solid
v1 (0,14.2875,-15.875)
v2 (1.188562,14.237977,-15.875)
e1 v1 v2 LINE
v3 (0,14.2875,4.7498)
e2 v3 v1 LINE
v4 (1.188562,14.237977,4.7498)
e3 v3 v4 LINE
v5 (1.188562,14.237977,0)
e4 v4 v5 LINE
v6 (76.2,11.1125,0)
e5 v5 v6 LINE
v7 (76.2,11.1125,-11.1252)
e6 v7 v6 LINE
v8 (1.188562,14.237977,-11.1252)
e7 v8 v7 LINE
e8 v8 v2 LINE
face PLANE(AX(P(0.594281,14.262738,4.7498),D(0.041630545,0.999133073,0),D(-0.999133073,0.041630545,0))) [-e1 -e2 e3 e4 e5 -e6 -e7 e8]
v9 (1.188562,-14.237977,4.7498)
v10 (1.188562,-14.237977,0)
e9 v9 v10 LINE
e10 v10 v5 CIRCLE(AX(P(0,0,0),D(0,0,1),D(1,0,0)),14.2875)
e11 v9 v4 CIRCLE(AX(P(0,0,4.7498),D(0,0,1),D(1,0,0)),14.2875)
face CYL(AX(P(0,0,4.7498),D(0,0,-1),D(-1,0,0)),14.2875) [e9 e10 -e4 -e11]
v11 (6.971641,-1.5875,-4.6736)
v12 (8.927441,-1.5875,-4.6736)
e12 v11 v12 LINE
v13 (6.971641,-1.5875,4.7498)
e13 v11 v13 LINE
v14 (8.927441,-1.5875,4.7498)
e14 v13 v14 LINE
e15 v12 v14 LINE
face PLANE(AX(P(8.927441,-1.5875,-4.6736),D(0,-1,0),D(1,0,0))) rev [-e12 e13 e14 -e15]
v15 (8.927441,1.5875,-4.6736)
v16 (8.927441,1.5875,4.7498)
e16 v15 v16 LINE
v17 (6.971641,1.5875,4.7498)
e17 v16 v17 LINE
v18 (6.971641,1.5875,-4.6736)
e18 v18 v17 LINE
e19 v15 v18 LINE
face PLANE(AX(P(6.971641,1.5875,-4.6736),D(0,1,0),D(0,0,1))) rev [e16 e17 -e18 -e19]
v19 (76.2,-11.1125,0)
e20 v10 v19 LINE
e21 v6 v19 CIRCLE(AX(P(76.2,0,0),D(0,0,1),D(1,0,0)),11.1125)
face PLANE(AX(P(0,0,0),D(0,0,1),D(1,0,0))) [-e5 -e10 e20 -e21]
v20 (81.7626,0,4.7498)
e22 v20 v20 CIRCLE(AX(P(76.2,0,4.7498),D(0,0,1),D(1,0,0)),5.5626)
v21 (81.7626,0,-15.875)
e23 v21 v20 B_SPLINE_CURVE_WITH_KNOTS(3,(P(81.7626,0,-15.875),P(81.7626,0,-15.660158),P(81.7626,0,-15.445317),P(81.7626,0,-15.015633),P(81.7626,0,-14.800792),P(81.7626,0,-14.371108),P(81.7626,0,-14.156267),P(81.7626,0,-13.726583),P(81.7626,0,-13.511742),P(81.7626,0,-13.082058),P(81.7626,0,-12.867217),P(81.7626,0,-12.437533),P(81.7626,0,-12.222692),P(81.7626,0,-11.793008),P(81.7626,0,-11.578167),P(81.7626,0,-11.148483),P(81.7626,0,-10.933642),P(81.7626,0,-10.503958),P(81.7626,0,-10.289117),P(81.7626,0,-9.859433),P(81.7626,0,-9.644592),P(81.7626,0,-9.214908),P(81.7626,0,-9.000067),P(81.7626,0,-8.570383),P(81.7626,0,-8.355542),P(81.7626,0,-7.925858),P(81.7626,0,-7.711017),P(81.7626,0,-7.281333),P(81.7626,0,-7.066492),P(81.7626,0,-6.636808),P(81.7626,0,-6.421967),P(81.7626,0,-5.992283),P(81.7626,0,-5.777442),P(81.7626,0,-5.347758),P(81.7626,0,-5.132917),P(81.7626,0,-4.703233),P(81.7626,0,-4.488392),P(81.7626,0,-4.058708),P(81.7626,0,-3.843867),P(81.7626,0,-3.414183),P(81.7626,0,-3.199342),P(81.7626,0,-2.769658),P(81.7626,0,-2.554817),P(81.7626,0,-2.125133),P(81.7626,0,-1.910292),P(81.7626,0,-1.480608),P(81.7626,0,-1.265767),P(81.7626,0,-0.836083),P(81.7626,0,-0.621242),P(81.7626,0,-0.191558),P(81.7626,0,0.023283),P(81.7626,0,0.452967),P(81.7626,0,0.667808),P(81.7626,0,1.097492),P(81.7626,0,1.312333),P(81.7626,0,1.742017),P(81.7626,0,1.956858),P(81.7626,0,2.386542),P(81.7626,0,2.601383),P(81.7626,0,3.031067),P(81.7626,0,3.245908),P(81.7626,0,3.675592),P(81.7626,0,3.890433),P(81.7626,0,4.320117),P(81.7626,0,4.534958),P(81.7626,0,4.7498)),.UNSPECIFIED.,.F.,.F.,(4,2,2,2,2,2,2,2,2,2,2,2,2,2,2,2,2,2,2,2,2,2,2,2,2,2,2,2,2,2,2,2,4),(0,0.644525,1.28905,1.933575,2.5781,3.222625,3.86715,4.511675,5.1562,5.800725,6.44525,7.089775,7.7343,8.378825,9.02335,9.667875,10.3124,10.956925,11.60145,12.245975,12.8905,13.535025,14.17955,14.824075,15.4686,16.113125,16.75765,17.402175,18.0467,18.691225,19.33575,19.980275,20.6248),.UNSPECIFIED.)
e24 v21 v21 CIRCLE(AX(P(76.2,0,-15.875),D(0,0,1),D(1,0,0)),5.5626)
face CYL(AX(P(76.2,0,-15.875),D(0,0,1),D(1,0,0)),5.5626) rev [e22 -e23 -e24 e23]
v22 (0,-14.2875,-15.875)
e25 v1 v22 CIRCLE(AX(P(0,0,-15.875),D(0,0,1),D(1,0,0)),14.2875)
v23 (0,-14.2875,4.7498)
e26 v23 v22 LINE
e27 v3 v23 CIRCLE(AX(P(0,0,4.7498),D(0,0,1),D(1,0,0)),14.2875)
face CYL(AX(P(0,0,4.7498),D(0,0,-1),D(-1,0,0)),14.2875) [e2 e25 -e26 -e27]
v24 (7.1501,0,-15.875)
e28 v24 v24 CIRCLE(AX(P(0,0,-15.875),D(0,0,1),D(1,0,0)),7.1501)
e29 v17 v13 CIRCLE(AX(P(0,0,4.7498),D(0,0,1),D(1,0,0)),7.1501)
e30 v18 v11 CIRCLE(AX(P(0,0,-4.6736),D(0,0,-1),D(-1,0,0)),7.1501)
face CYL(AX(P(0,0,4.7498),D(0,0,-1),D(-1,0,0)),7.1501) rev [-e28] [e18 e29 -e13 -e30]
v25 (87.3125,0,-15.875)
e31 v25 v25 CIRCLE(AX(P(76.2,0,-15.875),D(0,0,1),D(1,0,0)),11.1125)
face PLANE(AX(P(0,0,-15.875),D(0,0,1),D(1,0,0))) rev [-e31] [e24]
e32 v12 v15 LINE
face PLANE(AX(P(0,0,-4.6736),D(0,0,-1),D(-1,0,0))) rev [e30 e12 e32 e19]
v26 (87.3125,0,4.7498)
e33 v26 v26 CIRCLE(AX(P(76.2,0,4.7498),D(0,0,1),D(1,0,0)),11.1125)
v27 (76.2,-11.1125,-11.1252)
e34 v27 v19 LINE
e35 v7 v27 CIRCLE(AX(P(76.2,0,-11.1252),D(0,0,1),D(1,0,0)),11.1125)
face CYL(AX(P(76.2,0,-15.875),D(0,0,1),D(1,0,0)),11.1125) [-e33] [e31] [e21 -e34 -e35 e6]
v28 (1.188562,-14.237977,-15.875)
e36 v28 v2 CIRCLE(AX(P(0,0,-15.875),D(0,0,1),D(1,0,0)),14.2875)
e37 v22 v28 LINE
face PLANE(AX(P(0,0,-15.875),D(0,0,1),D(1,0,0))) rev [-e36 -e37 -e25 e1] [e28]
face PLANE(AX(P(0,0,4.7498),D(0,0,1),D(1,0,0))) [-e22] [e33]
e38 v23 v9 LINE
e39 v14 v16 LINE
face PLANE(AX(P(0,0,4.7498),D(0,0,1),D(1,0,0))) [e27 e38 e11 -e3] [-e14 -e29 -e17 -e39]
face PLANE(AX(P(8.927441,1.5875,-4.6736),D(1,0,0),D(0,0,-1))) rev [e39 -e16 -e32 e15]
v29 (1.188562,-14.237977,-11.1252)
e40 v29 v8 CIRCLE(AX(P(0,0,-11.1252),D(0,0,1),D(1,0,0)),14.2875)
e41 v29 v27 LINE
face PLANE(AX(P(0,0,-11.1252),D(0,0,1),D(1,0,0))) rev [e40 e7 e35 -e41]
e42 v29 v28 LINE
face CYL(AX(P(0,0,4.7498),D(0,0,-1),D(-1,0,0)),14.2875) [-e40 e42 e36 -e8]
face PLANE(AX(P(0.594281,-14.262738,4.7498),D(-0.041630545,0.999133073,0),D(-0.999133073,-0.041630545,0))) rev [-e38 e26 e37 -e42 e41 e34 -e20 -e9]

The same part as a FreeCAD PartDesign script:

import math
import FreeCAD as App
import Part
import Sketcher

V = App.Vector
Q = App.Units.Quantity

doc = App.newDocument("Part")
params = doc.addObject("Spreadsheet::Sheet", "Params")
for row, (alias, value) in enumerate([
    ("sketch1_diameter", "0.563 in"),
    ("sketch1_radius", "0.5625 in"),
    ("pad1_length", "0.187 in"),
    ("sketch2_diameter", "0.875 in"),
    ("sketch2_diameter2", "0.438 in"),
    ("pad2_length", "0.187 in"),
    ("sketch3_radius", "0.5625 in"),
    ("sketch3_radius2", "0.4375 in"),
    ("pad3_length", "0.438 in"),
    ("sketch4_diameter", "0.875 in"),
    ("sketch4_diameter2", "0.438 in"),
    ("sketch4_diameter3", "0.563 in"),
    ("sketch4_radius", "0.5625 in"),
    ("pad4_length", "0.625 in"),
    ("sketch5_width", "0.077 in"),
    ("sketch5_height", "0.125 in"),
    ("pocket1_length", "0.19 in"),
    ("pocket1_length2", "0.184 in"),
], start=1):
    params.set(f"A{row}", alias)
    params.set(f"B{row}", "=" + value)
    params.setAlias(f"B{row}", alias)

body = doc.addObject("PartDesign::Body", "Body")

# Sketch on XY plane
sketch1 = body.newObject("Sketcher::SketchObject", "Sketch")
sketch1.AttachmentSupport = (doc.getObject("XY_Plane"), [""])
sketch1.MapMode = "FlatFace"
sketch1.addGeometry([
    Part.LineSegment(V(1.188562, 14.237977, 0), V(0, 14.2875, 0)),  # 0
    Part.ArcOfCircle(Part.Circle(V(0, 0, 0), V(0, 0, 1), 14.2875), math.radians(90), math.radians(270)),  # 1
    Part.LineSegment(V(0, -14.2875, 0), V(1.188562, -14.237977, 0)),  # 2
    Part.ArcOfCircle(Part.Circle(V(0, 0, 0), V(0, 0, 1), 14.2875), math.radians(-85.228112), math.radians(0)),  # 3
    Part.ArcOfCircle(Part.Circle(V(0, 0, 0), V(0, 0, 1), 14.2875), math.radians(0), math.radians(85.228112)),  # 4
    Part.Circle(V(0, 0, 0), V(0, 0, 1), 7.1501),  # 5
], False)
sketch1.addConstraint([
    Sketcher.Constraint("Coincident", 0, 2, 1, 1),
    Sketcher.Constraint("Coincident", 1, 2, 2, 1),
    Sketcher.Constraint("Coincident", 2, 2, 3, 1),
    Sketcher.Constraint("Tangent", 3, 2, 4, 1),
    Sketcher.Constraint("Coincident", 4, 2, 0, 1),
    Sketcher.Constraint("Coincident", 1, 3, -1, 1),
    Sketcher.Constraint("Coincident", 3, 3, -1, 1),
    Sketcher.Constraint("Coincident", 5, 3, -1, 1),
    Sketcher.Constraint("Equal", 1, 3),
    Sketcher.Constraint("Equal", 3, 4),
    Sketcher.Constraint("PointOnObject", 0, 2, -2),
    Sketcher.Constraint("PointOnObject", 1, 2, -2),
    Sketcher.Constraint("PointOnObject", 3, 2, -1),
    Sketcher.Constraint("Vertical", 2, 2, 4, 2),
    Sketcher.Constraint("Diameter", 5, Q("0.563 in")),
    Sketcher.Constraint("Radius", 1, Q("0.5625 in")),
    Sketcher.Constraint("DistanceX", -1, 1, 2, 2, Q("1.188562 mm")),
])
sketch1.setExpression("Constraints[14]", "Params.sketch1_diameter")
sketch1.setExpression("Constraints[15]", "Params.sketch1_radius")
pad1 = body.newObject("PartDesign::Pad", "Pad")
pad1.Profile = sketch1
pad1.setExpression("Length", "Params.pad1_length")
body2 = doc.addObject("PartDesign::Body", "Body001")

# Sketch on XY plane
sketch2 = body2.newObject("Sketcher::SketchObject", "Sketch001")
sketch2.AttachmentSupport = (doc.getObject("XY_Plane001"), [""])
sketch2.MapMode = "FlatFace"
sketch2.addGeometry([
    Part.Circle(V(76.2, 0, 0), V(0, 0, 1), 11.1125),
    Part.Circle(V(76.2, 0, 0), V(0, 0, 1), 5.5626),
], False)
sketch2.addConstraint([
    Sketcher.Constraint("Coincident", 1, 3, 0, 3),
    Sketcher.Constraint("PointOnObject", 0, 3, -1),
    Sketcher.Constraint("Diameter", 0, Q("0.875 in")),
    Sketcher.Constraint("Diameter", 1, Q("0.438 in")),
    Sketcher.Constraint("DistanceX", -1, 1, 0, 3, Q("3 in")),
])
sketch2.setExpression("Constraints[2]", "Params.sketch2_diameter")
sketch2.setExpression("Constraints[3]", "Params.sketch2_diameter2")
pad2 = body2.newObject("PartDesign::Pad", "Pad001")
pad2.Profile = sketch2
pad2.setExpression("Length", "Params.pad2_length")
body3 = doc.addObject("PartDesign::Body", "Body002")

# Sketch on XY plane
sketch3 = body3.newObject("Sketcher::SketchObject", "Sketch002")
sketch3.AttachmentSupport = (doc.getObject("XY_Plane002"), [""])
sketch3.MapMode = "FlatFace"
sketch3.addGeometry([
    Part.LineSegment(V(76.2, 11.1125, 0), V(1.188562, 14.237977, 0)),  # 0
    Part.ArcOfCircle(Part.Circle(V(0, 0, 0), V(0, 0, 1), 14.2875), math.radians(0), math.radians(85.228112)),  # 1
    Part.ArcOfCircle(Part.Circle(V(0, 0, 0), V(0, 0, 1), 14.2875), math.radians(-85.228112), math.radians(0)),  # 2
    Part.LineSegment(V(1.188562, -14.237977, 0), V(76.2, -11.1125, 0)),  # 3
    Part.ArcOfCircle(Part.Circle(V(76.2, 0, 0), V(0, 0, 1), 11.1125), math.radians(90), math.radians(270)),  # 4
], False)
sketch3.addConstraint([
    Sketcher.Constraint("Coincident", 0, 2, 1, 2),
    Sketcher.Constraint("Tangent", 1, 1, 2, 2),
    Sketcher.Constraint("Coincident", 2, 1, 3, 1),
    Sketcher.Constraint("Coincident", 3, 2, 4, 2),
    Sketcher.Constraint("Coincident", 4, 1, 0, 1),
    Sketcher.Constraint("Coincident", 1, 3, -1, 1),
    Sketcher.Constraint("Equal", 1, 2),
    Sketcher.Constraint("Symmetric", 3, 2, 4, 1, -1),
    Sketcher.Constraint("PointOnObject", 1, 1, -1),
    Sketcher.Constraint("Vertical", 0, 2, 2, 1),
    Sketcher.Constraint("Vertical", 4, 3, 3, 2),
    Sketcher.Constraint("DistanceX", -1, 1, 4, 3, Q("3 in")),
    Sketcher.Constraint("Radius", 1, Q("0.5625 in")),
    Sketcher.Constraint("Radius", 4, Q("0.4375 in")),
    Sketcher.Constraint("DistanceX", -1, 1, 0, 2, Q("1.188562 mm")),
])
sketch3.setExpression("Constraints[12]", "Params.sketch3_radius")
sketch3.setExpression("Constraints[13]", "Params.sketch3_radius2")
pad3 = body3.newObject("PartDesign::Pad", "Pad002")
pad3.Profile = sketch3
pad3.setExpression("Length", "Params.pad3_length")
pad3.Reversed = True
body.AllowCompound = True
doc.recompute()

boolean = body.newObject("PartDesign::Boolean", "Boolean")
boolean.Type = "Fuse"
boolean.addObjects([body2])
doc.recompute()

boolean2 = body.newObject("PartDesign::Boolean", "Boolean001")
boolean2.Type = "Fuse"
boolean2.addObjects([body3])

# Sketch on XY plane
sketch4 = body.newObject("Sketcher::SketchObject", "Sketch003")
sketch4.AttachmentSupport = (doc.getObject("XY_Plane"), [""])
sketch4.MapMode = "FlatFace"
sketch4.AttachmentOffset = App.Placement(V(0, 0, -0.625 * 25.4), App.Rotation())
sketch4.addGeometry([
    Part.Circle(V(76.2, 0, 0), V(0, 0, 1), 11.1125),  # 0
    Part.Circle(V(76.2, 0, 0), V(0, 0, 1), 5.5626),  # 1
    Part.LineSegment(V(1.188562, 14.237977, 0), V(0, 14.2875, 0)),  # 2
    Part.ArcOfCircle(Part.Circle(V(0, 0, 0), V(0, 0, 1), 14.2875), math.radians(90), math.radians(270)),  # 3
    Part.LineSegment(V(0, -14.2875, 0), V(1.188562, -14.237977, 0)),  # 4
    Part.ArcOfCircle(Part.Circle(V(0, 0, 0), V(0, 0, 1), 14.2875), math.radians(-85.228112), math.radians(0)),  # 5
    Part.ArcOfCircle(Part.Circle(V(0, 0, 0), V(0, 0, 1), 14.2875), math.radians(0), math.radians(85.228112)),  # 6
    Part.Circle(V(0, 0, 0), V(0, 0, 1), 7.1501),  # 7
], False)
sketch4.addConstraint([
    Sketcher.Constraint("Coincident", 2, 2, 3, 1),
    Sketcher.Constraint("Coincident", 3, 2, 4, 1),
    Sketcher.Constraint("Coincident", 4, 2, 5, 1),
    Sketcher.Constraint("Tangent", 5, 2, 6, 1),
    Sketcher.Constraint("Coincident", 6, 2, 2, 1),
    Sketcher.Constraint("Coincident", 3, 3, -1, 1),
    Sketcher.Constraint("Coincident", 5, 3, -1, 1),
    Sketcher.Constraint("Coincident", 7, 3, -1, 1),
    Sketcher.Constraint("Coincident", 1, 3, 0, 3),
    Sketcher.Constraint("Equal", 3, 5),
    Sketcher.Constraint("Equal", 5, 6),
    Sketcher.Constraint("PointOnObject", 0, 3, -1),
    Sketcher.Constraint("PointOnObject", 2, 2, -2),
    Sketcher.Constraint("PointOnObject", 3, 2, -2),
    Sketcher.Constraint("PointOnObject", 5, 2, -1),
    Sketcher.Constraint("Vertical", 4, 2, 6, 2),
    Sketcher.Constraint("Diameter", 0, Q("0.875 in")),
    Sketcher.Constraint("Diameter", 1, Q("0.438 in")),
    Sketcher.Constraint("Diameter", 7, Q("0.563 in")),
    Sketcher.Constraint("DistanceX", -1, 1, 0, 3, Q("3 in")),
    Sketcher.Constraint("Radius", 3, Q("0.5625 in")),
    Sketcher.Constraint("DistanceX", -1, 1, 4, 2, Q("1.188562 mm")),
])
sketch4.setExpression("Constraints[16]", "Params.sketch4_diameter")
sketch4.setExpression("Constraints[17]", "Params.sketch4_diameter2")
sketch4.setExpression("Constraints[18]", "Params.sketch4_diameter3")
sketch4.setExpression("Constraints[20]", "Params.sketch4_radius")
pad4 = body.newObject("PartDesign::Pad", "Pad003")
pad4.Profile = sketch4
pad4.setExpression("Length", "Params.pad4_length")

# Sketch on XY plane
sketch5 = body.newObject("Sketcher::SketchObject", "Sketch004")
sketch5.AttachmentSupport = (doc.getObject("XY_Plane"), [""])
sketch5.MapMode = "FlatFace"
sketch5.addGeometry([
    Part.LineSegment(V(6.971641, 1.5875, 0), V(6.971641, -1.5875, 0)),
    Part.LineSegment(V(6.971641, -1.5875, 0), V(8.927441, -1.5875, 0)),
    Part.LineSegment(V(8.927441, -1.5875, 0), V(8.927441, 1.5875, 0)),
    Part.LineSegment(V(8.927441, 1.5875, 0), V(6.971641, 1.5875, 0)),
], False)
sketch5.addConstraint([
    Sketcher.Constraint("Coincident", 0, 2, 1, 1),
    Sketcher.Constraint("Coincident", 1, 2, 2, 1),
    Sketcher.Constraint("Coincident", 2, 2, 3, 1),
    Sketcher.Constraint("Coincident", 3, 2, 0, 1),
    Sketcher.Constraint("Vertical", 0),
    Sketcher.Constraint("Horizontal", 1),
    Sketcher.Constraint("Vertical", 2),
    Sketcher.Constraint("Horizontal", 3),
    Sketcher.Constraint("DistanceX", 1, 1, 1, 2, Q("0.077 in")),
    Sketcher.Constraint("DistanceY", 0, 2, 0, 1, Q("0.125 in")),
    Sketcher.Constraint("DistanceY", 0, 2, -1, 1, Q("0.0625 in")),
    Sketcher.Constraint("DistanceX", -1, 1, 0, 2, Q("6.971641 mm")),
])
sketch5.setExpression("Constraints[8]", "Params.sketch5_width")
sketch5.setExpression("Constraints[9]", "Params.sketch5_height")
pocket1 = body.newObject("PartDesign::Pocket", "Pocket")
pocket1.Profile = sketch5
pocket1.Type = "TwoLengths"
pocket1.setExpression("Length", "Params.pocket1_length")
pocket1.setExpression("Length2", "Params.pocket1_length2")
pocket1.Reversed = True

doc.recompute()
